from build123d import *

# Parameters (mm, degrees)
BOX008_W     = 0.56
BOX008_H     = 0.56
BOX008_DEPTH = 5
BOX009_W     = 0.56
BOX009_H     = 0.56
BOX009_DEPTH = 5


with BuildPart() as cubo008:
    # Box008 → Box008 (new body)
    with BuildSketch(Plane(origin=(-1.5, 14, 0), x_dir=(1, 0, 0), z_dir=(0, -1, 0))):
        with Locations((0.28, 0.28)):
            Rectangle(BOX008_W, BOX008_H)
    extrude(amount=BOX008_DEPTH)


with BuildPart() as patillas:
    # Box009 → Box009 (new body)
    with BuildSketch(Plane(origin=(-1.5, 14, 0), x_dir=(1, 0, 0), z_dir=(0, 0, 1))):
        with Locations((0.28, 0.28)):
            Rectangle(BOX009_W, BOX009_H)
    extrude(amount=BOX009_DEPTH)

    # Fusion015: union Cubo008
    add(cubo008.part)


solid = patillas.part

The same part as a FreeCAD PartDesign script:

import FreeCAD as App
import Part
import Sketcher

V = App.Vector

doc = App.newDocument("Part")
body = doc.addObject("PartDesign::Body", "Body")

sketch1 = body.newObject("Sketcher::SketchObject", "Sketch")
sketch1.AttachmentSupport = (doc.getObject("XZ_Plane"), [""])
sketch1.MapMode = "FlatFace"
sketch1.AttachmentOffset = App.Placement(V(0, 0, -14), App.Rotation())
sketch1.addGeometry([
    Part.LineSegment(V(-1.5, 0.56, 0), V(-1.5, 0, 0)),
    Part.LineSegment(V(-1.5, 0, 0), V(-0.94, 0, 0)),
    Part.LineSegment(V(-0.94, 0, 0), V(-0.94, 0.56, 0)),
    Part.LineSegment(V(-0.94, 0.56, 0), V(-1.5, 0.56, 0)),
], False)
sketch1.addConstraint([
    Sketcher.Constraint("Coincident", 0, 2, 1, 1),
    Sketcher.Constraint("Coincident", 1, 2, 2, 1),
    Sketcher.Constraint("Coincident", 2, 2, 3, 1),
    Sketcher.Constraint("Coincident", 3, 2, 0, 1),
    Sketcher.Constraint("Vertical", 0),
    Sketcher.Constraint("Horizontal", 1),
    Sketcher.Constraint("Vertical", 2),
    Sketcher.Constraint("Horizontal", 3),
    Sketcher.Constraint("PointOnObject", 0, 2, -1),
    Sketcher.Constraint("Equal", 3, 0),
    Sketcher.Constraint("DistanceX", 1, 1, 1, 2, 0.56),
    Sketcher.Constraint("DistanceX", 0, 2, -1, 1, 1.5),
])
pad1 = body.newObject("PartDesign::Pad", "Pad")
pad1.Profile = sketch1
pad1.Length = 5
body2 = doc.addObject("PartDesign::Body", "Body001")

sketch2 = body2.newObject("Sketcher::SketchObject", "Sketch001")
sketch2.AttachmentSupport = (doc.getObject("XY_Plane001"), [""])
sketch2.MapMode = "FlatFace"
sketch2.addGeometry([
    Part.LineSegment(V(-1.5, 14.56, 0), V(-1.5, 14, 0)),
    Part.LineSegment(V(-1.5, 14, 0), V(-0.94, 14, 0)),
    Part.LineSegment(V(-0.94, 14, 0), V(-0.94, 14.56, 0)),
    Part.LineSegment(V(-0.94, 14.56, 0), V(-1.5, 14.56, 0)),
], False)
sketch2.addConstraint([
    Sketcher.Constraint("Coincident", 0, 2, 1, 1),
    Sketcher.Constraint("Coincident", 1, 2, 2, 1),
    Sketcher.Constraint("Coincident", 2, 2, 3, 1),
    Sketcher.Constraint("Coincident", 3, 2, 0, 1),
    Sketcher.Constraint("Vertical", 0),
    Sketcher.Constraint("Horizontal", 1),
    Sketcher.Constraint("Vertical", 2),
    Sketcher.Constraint("Horizontal", 3),
    Sketcher.Constraint("Equal", 3, 0),
    Sketcher.Constraint("DistanceY", -1, 1, 0, 2, 14.0),
    Sketcher.Constraint("DistanceX", 1, 1, 1, 2, 0.56),
    Sketcher.Constraint("DistanceX", 0, 2, -1, 1, 1.5),
])
pad2 = body2.newObject("PartDesign::Pad", "Pad001")
pad2.Profile = sketch2
pad2.Length = 5
doc.recompute()

boolean = body2.newObject("PartDesign::Boolean", "Boolean")
boolean.Type = "Fuse"
boolean.addObjects([body])

doc.recompute()
